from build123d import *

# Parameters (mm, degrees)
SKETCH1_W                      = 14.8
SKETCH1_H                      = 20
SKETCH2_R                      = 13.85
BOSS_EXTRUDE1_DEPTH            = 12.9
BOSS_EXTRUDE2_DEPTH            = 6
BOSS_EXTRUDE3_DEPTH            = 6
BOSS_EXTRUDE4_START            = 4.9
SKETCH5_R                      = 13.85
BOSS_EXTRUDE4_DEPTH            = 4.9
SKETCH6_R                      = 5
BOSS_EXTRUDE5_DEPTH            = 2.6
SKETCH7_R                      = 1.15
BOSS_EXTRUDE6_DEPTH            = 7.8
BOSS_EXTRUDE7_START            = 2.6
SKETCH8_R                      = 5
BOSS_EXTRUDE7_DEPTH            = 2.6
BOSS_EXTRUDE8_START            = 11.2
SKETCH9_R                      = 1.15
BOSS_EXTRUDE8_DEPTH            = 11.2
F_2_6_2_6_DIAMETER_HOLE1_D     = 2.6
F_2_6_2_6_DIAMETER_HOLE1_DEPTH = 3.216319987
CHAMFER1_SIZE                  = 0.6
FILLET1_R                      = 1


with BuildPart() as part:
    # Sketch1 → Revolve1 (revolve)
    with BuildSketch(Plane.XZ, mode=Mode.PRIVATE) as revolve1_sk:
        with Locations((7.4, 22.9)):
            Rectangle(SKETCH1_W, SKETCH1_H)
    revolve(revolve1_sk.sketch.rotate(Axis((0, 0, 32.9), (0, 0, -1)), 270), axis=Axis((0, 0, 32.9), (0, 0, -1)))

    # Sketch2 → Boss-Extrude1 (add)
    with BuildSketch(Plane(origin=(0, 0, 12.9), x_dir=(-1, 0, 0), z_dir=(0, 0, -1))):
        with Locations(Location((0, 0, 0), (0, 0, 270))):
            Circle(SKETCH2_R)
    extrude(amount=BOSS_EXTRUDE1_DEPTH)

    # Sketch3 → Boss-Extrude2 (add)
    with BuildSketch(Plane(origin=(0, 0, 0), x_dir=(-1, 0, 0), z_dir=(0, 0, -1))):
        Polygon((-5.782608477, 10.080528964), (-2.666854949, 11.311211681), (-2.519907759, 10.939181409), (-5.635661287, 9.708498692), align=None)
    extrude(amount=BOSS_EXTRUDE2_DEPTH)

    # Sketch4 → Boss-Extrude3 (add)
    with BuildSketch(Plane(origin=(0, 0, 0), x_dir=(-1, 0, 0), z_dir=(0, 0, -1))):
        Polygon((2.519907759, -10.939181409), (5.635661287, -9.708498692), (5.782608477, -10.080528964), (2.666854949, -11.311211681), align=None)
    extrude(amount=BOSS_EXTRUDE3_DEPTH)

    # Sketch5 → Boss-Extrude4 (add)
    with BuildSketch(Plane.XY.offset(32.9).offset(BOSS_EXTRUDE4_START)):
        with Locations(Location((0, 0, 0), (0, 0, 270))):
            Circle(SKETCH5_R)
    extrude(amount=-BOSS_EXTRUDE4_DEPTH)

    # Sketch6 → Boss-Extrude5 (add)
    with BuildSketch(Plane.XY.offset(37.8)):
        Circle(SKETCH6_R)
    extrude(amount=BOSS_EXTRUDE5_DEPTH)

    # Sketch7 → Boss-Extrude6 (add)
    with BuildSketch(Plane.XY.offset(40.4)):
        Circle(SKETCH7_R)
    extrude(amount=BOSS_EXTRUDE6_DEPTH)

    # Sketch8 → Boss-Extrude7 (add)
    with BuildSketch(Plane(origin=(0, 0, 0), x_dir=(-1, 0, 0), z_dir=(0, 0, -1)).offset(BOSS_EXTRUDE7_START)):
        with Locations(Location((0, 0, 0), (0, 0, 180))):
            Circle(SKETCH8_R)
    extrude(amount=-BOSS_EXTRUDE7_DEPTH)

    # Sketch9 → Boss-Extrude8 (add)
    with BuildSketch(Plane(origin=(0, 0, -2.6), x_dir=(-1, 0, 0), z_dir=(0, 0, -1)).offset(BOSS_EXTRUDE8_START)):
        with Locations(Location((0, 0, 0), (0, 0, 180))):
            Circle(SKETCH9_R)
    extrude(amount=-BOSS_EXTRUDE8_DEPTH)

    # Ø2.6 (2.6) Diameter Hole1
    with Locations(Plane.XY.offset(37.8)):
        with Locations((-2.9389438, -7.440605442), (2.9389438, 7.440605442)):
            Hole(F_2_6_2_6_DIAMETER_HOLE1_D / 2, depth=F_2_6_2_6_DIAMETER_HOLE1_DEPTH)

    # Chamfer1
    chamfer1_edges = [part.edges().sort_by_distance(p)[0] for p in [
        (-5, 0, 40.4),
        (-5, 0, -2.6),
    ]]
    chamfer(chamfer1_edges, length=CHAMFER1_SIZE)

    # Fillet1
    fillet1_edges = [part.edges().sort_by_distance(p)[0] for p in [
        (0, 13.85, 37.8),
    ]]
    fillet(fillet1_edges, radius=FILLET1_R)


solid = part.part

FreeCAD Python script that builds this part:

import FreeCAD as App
import Part
import Sketcher
from FreeCAD import Vector
Q = App.Units.Quantity


def edges_at(feature, points):
    """Names of the edges that pass closest to the given points."""
    edges = feature.Shape.Edges
    near = lambda p: min(range(len(edges)), key=lambda i: edges[i].distToShape(Part.Vertex(*p))[0])
    return sorted({f"Edge{near(p) + 1}" for p in points})


def add_polygon(sketch, points):
    """Adds a closed chain of lines whose ends are joined by coincident constraints."""
    first, n = sketch.GeometryCount, len(points)
    for a, b in zip(points, points[1:] + points[:1]):
        sketch.addGeometry(Part.LineSegment(App.Vector(*a, 0), App.Vector(*b, 0)), False)
    for i in range(n):
        sketch.addConstraint(Sketcher.Constraint("Coincident", first + i, 2, first + (i + 1) % n, 1))

doc = App.newDocument("Part")
body = doc.addObject("PartDesign::Body", "Body")

sketch1 = body.newObject("Sketcher::SketchObject", "Sketch")
sketch1.AttachmentSupport = (doc.getObject("XZ_Plane"), [""])
sketch1.MapMode = "FlatFace"
add_polygon(sketch1, [(0, 33), (0, 13), (15, 13), (15, 33)])
sketch1.addConstraint([
    Sketcher.Constraint("Vertical", 0),
    Sketcher.Constraint("Horizontal", 1),
    Sketcher.Constraint("Vertical", 2),
    Sketcher.Constraint("Horizontal", 3),
    Sketcher.Constraint("PointOnObject", 0, 2, -2),
    Sketcher.Constraint("DistanceY", 0, 2, 0, 1, Q("20 mm")),
    Sketcher.Constraint("DistanceX", 1, 1, 1, 2, Q("14.8 mm")),
    Sketcher.Constraint("DistanceY", -1, 1, 0, 2, Q("12.9 mm")),
])
revolution = body.newObject("PartDesign::Revolution", "Revolution")
revolution.Profile = sketch1
revolution.ReferenceAxis = (sketch1, ["V_Axis"])
revolution.Angle = 360

sketch2 = body.newObject("Sketcher::SketchObject", "Sketch001")
sketch2.AttachmentSupport = (doc.getObject("XY_Plane"), [""])
sketch2.MapMode = "FlatFace"
sketch2.AttachmentOffset = App.Placement(Vector(0, 0, 12.9), App.Rotation())
sketch2.addGeometry(Part.Circle(Vector(0, 0, 0), Vector(0, 0, 1), 14), False)
sketch2.addConstraint([
    Sketcher.Constraint("Coincident", 0, 3, -1, 1),
    Sketcher.Constraint("Diameter", 0, Q("27.7 mm")),
])
pad1 = body.newObject("PartDesign::Pad", "Pad")
pad1.Profile = sketch2
pad1.Length = 12.9
pad1.Reversed = True

sketch3 = body.newObject("Sketcher::SketchObject", "Sketch002")
sketch3.AttachmentSupport = (doc.getObject("XY_Plane"), [""])
sketch3.MapMode = "FlatFace"
add_polygon(sketch3, [(2.67, 11.31), (5.78, 10.08), (5.64, 9.71), (2.52, 10.94)])
sketch3.addConstraint([
    Sketcher.Constraint("Perpendicular", 0, 1),
    Sketcher.Constraint("Perpendicular", 1, 2),
    Sketcher.Constraint("Perpendicular", 2, 3),
    Sketcher.Constraint("Distance", 1, Q("0.4 mm")),
    Sketcher.Constraint("Distance", 0, Q("3.35 mm")),
    Sketcher.Constraint("DistanceY", -1, 1, 1, 2, Q("9.708499 mm")),
    Sketcher.Constraint("DistanceX", 2, 2, 0, 2, Q("3.262701 mm")),
    Sketcher.Constraint("DistanceX", -1, 1, 0, 2, Q("5.782608 mm")),
])
pad2 = body.newObject("PartDesign::Pad", "Pad001")
pad2.Profile = sketch3
pad2.Length = 6
pad2.Reversed = True

sketch4 = body.newObject("Sketcher::SketchObject", "Sketch003")
sketch4.AttachmentSupport = (doc.getObject("XY_Plane"), [""])
sketch4.MapMode = "FlatFace"
add_polygon(sketch4, [(-5.64, -9.71), (-2.52, -10.94), (-2.67, -11.31), (-5.78, -10.08)])
sketch4.addConstraint([
    Sketcher.Constraint("Perpendicular", 0, 1),
    Sketcher.Constraint("Perpendicular", 1, 2),
    Sketcher.Constraint("Perpendicular", 2, 3),
    Sketcher.Constraint("Distance", 1, Q("0.4 mm")),
    Sketcher.Constraint("Distance", 0, Q("3.35 mm")),
    Sketcher.Constraint("DistanceY", 3, 2, -1, 1, Q("9.708499 mm")),
    Sketcher.Constraint("DistanceX", 2, 2, 0, 2, Q("3.262701 mm")),
    Sketcher.Constraint("DistanceX", 2, 2, -1, 1, Q("5.782608 mm")),
])
pad3 = body.newObject("PartDesign::Pad", "Pad002")
pad3.Profile = sketch4
pad3.Length = 6
pad3.Reversed = True

sketch5 = body.newObject("Sketcher::SketchObject", "Sketch004")
sketch5.AttachmentSupport = (doc.getObject("XY_Plane"), [""])
sketch5.MapMode = "FlatFace"
sketch5.AttachmentOffset = App.Placement(Vector(0, 0, 37.8), App.Rotation())
sketch5.addGeometry(Part.Circle(Vector(0, 0, 0), Vector(0, 0, 1), 14), False)
sketch5.addConstraint([
    Sketcher.Constraint("Coincident", 0, 3, -1, 1),
    Sketcher.Constraint("Diameter", 0, Q("27.7 mm")),
])
pad4 = body.newObject("PartDesign::Pad", "Pad003")
pad4.Profile = sketch5
pad4.Length = 4.9
pad4.Reversed = True

sketch6 = body.newObject("Sketcher::SketchObject", "Sketch005")
sketch6.AttachmentSupport = (doc.getObject("XY_Plane"), [""])
sketch6.MapMode = "FlatFace"
sketch6.AttachmentOffset = App.Placement(Vector(0, 0, 37.8), App.Rotation())
sketch6.addGeometry(Part.Circle(Vector(0, 0, 0), Vector(0, 0, 1), 5), False)
sketch6.addConstraint([
    Sketcher.Constraint("Coincident", 0, 3, -1, 1),
    Sketcher.Constraint("Diameter", 0, Q("10 mm")),
])
pad5 = body.newObject("PartDesign::Pad", "Pad004")
pad5.Profile = sketch6
pad5.Length = 2.6

sketch7 = body.newObject("Sketcher::SketchObject", "Sketch006")
sketch7.AttachmentSupport = (doc.getObject("XY_Plane"), [""])
sketch7.MapMode = "FlatFace"
sketch7.AttachmentOffset = App.Placement(Vector(0, 0, 40.4), App.Rotation())
sketch7.addGeometry(Part.Circle(Vector(0, 0, 0), Vector(0, 0, 1), 1.1), False)
sketch7.addConstraint([
    Sketcher.Constraint("Coincident", 0, 3, -1, 1),
    Sketcher.Constraint("Diameter", 0, Q("2.3 mm")),
])
pad6 = body.newObject("PartDesign::Pad", "Pad005")
pad6.Profile = sketch7
pad6.Length = 7.8

sketch8 = body.newObject("Sketcher::SketchObject", "Sketch007")
sketch8.AttachmentSupport = (doc.getObject("XY_Plane"), [""])
sketch8.MapMode = "FlatFace"
sketch8.AttachmentOffset = App.Placement(Vector(0, 0, -2.6), App.Rotation())
sketch8.addGeometry(Part.Circle(Vector(0, 0, 0), Vector(0, 0, 1), 5), False)
sketch8.addConstraint([
    Sketcher.Constraint("Coincident", 0, 3, -1, 1),
    Sketcher.Constraint("Diameter", 0, Q("10 mm")),
])
pad7 = body.newObject("PartDesign::Pad", "Pad006")
pad7.Profile = sketch8
pad7.Length = 2.6

sketch9 = body.newObject("Sketcher::SketchObject", "Sketch008")
sketch9.AttachmentSupport = (doc.getObject("XY_Plane"), [""])
sketch9.MapMode = "FlatFace"
sketch9.AttachmentOffset = App.Placement(Vector(0, 0, -13.8), App.Rotation())
sketch9.addGeometry(Part.Circle(Vector(0, 0, 0), Vector(0, 0, 1), 1.1), False)
sketch9.addConstraint([
    Sketcher.Constraint("Coincident", 0, 3, -1, 1),
    Sketcher.Constraint("Diameter", 0, Q("2.3 mm")),
])
pad8 = body.newObject("PartDesign::Pad", "Pad007")
pad8.Profile = sketch9
pad8.Length = 11.2

sketch10 = body.newObject("Sketcher::SketchObject", "Sketch009")
sketch10.AttachmentSupport = (doc.getObject("XY_Plane"), [""])
sketch10.MapMode = "FlatFace"
sketch10.AttachmentOffset = App.Placement(Vector(0, 0, 37.8), App.Rotation())
sketch10.addGeometry([
    Part.Circle(Vector(-2.9, -7.4, 0), Vector(0, 0, 1), 1.3),
    Part.Circle(Vector(2.9, 7.4, 0), Vector(0, 0, 1), 1.3),
], False)
sketch10.addConstraint([
    Sketcher.Constraint("Equal", 0, 1),
    Sketcher.Constraint("Symmetric", 0, 3, 1, 3, -1, 1),
    Sketcher.Constraint("Diameter", 0, Q("2.6 mm")),
    Sketcher.Constraint("DistanceY", 0, 3, 1, 3, Q("14.881211 mm")),
    Sketcher.Constraint("DistanceX", 0, 3, -1, 1, Q("2.938944 mm")),
])
doc.recompute()
hole = body.newObject("PartDesign::Hole", "Hole")
hole.Profile = sketch10
hole.ThreadType = "None"
hole.Diameter = 2.6
hole.DepthType = "Dimension"
hole.Depth = 3.21632
hole.DrillPoint = "Flat"
doc.recompute()

chamfer = body.newObject("PartDesign::Chamfer", "Chamfer")
chamfer.Base = (hole, edges_at(hole, [(-5, 0, 40.4), (-5, 0, -2.6)]))
chamfer.Size = 0.6
doc.recompute()

fillet = body.newObject("PartDesign::Fillet", "Fillet")
fillet.Base = (chamfer, edges_at(chamfer, [(0, 13.85, 37.8)]))
fillet.Radius = 1

doc.recompute()
